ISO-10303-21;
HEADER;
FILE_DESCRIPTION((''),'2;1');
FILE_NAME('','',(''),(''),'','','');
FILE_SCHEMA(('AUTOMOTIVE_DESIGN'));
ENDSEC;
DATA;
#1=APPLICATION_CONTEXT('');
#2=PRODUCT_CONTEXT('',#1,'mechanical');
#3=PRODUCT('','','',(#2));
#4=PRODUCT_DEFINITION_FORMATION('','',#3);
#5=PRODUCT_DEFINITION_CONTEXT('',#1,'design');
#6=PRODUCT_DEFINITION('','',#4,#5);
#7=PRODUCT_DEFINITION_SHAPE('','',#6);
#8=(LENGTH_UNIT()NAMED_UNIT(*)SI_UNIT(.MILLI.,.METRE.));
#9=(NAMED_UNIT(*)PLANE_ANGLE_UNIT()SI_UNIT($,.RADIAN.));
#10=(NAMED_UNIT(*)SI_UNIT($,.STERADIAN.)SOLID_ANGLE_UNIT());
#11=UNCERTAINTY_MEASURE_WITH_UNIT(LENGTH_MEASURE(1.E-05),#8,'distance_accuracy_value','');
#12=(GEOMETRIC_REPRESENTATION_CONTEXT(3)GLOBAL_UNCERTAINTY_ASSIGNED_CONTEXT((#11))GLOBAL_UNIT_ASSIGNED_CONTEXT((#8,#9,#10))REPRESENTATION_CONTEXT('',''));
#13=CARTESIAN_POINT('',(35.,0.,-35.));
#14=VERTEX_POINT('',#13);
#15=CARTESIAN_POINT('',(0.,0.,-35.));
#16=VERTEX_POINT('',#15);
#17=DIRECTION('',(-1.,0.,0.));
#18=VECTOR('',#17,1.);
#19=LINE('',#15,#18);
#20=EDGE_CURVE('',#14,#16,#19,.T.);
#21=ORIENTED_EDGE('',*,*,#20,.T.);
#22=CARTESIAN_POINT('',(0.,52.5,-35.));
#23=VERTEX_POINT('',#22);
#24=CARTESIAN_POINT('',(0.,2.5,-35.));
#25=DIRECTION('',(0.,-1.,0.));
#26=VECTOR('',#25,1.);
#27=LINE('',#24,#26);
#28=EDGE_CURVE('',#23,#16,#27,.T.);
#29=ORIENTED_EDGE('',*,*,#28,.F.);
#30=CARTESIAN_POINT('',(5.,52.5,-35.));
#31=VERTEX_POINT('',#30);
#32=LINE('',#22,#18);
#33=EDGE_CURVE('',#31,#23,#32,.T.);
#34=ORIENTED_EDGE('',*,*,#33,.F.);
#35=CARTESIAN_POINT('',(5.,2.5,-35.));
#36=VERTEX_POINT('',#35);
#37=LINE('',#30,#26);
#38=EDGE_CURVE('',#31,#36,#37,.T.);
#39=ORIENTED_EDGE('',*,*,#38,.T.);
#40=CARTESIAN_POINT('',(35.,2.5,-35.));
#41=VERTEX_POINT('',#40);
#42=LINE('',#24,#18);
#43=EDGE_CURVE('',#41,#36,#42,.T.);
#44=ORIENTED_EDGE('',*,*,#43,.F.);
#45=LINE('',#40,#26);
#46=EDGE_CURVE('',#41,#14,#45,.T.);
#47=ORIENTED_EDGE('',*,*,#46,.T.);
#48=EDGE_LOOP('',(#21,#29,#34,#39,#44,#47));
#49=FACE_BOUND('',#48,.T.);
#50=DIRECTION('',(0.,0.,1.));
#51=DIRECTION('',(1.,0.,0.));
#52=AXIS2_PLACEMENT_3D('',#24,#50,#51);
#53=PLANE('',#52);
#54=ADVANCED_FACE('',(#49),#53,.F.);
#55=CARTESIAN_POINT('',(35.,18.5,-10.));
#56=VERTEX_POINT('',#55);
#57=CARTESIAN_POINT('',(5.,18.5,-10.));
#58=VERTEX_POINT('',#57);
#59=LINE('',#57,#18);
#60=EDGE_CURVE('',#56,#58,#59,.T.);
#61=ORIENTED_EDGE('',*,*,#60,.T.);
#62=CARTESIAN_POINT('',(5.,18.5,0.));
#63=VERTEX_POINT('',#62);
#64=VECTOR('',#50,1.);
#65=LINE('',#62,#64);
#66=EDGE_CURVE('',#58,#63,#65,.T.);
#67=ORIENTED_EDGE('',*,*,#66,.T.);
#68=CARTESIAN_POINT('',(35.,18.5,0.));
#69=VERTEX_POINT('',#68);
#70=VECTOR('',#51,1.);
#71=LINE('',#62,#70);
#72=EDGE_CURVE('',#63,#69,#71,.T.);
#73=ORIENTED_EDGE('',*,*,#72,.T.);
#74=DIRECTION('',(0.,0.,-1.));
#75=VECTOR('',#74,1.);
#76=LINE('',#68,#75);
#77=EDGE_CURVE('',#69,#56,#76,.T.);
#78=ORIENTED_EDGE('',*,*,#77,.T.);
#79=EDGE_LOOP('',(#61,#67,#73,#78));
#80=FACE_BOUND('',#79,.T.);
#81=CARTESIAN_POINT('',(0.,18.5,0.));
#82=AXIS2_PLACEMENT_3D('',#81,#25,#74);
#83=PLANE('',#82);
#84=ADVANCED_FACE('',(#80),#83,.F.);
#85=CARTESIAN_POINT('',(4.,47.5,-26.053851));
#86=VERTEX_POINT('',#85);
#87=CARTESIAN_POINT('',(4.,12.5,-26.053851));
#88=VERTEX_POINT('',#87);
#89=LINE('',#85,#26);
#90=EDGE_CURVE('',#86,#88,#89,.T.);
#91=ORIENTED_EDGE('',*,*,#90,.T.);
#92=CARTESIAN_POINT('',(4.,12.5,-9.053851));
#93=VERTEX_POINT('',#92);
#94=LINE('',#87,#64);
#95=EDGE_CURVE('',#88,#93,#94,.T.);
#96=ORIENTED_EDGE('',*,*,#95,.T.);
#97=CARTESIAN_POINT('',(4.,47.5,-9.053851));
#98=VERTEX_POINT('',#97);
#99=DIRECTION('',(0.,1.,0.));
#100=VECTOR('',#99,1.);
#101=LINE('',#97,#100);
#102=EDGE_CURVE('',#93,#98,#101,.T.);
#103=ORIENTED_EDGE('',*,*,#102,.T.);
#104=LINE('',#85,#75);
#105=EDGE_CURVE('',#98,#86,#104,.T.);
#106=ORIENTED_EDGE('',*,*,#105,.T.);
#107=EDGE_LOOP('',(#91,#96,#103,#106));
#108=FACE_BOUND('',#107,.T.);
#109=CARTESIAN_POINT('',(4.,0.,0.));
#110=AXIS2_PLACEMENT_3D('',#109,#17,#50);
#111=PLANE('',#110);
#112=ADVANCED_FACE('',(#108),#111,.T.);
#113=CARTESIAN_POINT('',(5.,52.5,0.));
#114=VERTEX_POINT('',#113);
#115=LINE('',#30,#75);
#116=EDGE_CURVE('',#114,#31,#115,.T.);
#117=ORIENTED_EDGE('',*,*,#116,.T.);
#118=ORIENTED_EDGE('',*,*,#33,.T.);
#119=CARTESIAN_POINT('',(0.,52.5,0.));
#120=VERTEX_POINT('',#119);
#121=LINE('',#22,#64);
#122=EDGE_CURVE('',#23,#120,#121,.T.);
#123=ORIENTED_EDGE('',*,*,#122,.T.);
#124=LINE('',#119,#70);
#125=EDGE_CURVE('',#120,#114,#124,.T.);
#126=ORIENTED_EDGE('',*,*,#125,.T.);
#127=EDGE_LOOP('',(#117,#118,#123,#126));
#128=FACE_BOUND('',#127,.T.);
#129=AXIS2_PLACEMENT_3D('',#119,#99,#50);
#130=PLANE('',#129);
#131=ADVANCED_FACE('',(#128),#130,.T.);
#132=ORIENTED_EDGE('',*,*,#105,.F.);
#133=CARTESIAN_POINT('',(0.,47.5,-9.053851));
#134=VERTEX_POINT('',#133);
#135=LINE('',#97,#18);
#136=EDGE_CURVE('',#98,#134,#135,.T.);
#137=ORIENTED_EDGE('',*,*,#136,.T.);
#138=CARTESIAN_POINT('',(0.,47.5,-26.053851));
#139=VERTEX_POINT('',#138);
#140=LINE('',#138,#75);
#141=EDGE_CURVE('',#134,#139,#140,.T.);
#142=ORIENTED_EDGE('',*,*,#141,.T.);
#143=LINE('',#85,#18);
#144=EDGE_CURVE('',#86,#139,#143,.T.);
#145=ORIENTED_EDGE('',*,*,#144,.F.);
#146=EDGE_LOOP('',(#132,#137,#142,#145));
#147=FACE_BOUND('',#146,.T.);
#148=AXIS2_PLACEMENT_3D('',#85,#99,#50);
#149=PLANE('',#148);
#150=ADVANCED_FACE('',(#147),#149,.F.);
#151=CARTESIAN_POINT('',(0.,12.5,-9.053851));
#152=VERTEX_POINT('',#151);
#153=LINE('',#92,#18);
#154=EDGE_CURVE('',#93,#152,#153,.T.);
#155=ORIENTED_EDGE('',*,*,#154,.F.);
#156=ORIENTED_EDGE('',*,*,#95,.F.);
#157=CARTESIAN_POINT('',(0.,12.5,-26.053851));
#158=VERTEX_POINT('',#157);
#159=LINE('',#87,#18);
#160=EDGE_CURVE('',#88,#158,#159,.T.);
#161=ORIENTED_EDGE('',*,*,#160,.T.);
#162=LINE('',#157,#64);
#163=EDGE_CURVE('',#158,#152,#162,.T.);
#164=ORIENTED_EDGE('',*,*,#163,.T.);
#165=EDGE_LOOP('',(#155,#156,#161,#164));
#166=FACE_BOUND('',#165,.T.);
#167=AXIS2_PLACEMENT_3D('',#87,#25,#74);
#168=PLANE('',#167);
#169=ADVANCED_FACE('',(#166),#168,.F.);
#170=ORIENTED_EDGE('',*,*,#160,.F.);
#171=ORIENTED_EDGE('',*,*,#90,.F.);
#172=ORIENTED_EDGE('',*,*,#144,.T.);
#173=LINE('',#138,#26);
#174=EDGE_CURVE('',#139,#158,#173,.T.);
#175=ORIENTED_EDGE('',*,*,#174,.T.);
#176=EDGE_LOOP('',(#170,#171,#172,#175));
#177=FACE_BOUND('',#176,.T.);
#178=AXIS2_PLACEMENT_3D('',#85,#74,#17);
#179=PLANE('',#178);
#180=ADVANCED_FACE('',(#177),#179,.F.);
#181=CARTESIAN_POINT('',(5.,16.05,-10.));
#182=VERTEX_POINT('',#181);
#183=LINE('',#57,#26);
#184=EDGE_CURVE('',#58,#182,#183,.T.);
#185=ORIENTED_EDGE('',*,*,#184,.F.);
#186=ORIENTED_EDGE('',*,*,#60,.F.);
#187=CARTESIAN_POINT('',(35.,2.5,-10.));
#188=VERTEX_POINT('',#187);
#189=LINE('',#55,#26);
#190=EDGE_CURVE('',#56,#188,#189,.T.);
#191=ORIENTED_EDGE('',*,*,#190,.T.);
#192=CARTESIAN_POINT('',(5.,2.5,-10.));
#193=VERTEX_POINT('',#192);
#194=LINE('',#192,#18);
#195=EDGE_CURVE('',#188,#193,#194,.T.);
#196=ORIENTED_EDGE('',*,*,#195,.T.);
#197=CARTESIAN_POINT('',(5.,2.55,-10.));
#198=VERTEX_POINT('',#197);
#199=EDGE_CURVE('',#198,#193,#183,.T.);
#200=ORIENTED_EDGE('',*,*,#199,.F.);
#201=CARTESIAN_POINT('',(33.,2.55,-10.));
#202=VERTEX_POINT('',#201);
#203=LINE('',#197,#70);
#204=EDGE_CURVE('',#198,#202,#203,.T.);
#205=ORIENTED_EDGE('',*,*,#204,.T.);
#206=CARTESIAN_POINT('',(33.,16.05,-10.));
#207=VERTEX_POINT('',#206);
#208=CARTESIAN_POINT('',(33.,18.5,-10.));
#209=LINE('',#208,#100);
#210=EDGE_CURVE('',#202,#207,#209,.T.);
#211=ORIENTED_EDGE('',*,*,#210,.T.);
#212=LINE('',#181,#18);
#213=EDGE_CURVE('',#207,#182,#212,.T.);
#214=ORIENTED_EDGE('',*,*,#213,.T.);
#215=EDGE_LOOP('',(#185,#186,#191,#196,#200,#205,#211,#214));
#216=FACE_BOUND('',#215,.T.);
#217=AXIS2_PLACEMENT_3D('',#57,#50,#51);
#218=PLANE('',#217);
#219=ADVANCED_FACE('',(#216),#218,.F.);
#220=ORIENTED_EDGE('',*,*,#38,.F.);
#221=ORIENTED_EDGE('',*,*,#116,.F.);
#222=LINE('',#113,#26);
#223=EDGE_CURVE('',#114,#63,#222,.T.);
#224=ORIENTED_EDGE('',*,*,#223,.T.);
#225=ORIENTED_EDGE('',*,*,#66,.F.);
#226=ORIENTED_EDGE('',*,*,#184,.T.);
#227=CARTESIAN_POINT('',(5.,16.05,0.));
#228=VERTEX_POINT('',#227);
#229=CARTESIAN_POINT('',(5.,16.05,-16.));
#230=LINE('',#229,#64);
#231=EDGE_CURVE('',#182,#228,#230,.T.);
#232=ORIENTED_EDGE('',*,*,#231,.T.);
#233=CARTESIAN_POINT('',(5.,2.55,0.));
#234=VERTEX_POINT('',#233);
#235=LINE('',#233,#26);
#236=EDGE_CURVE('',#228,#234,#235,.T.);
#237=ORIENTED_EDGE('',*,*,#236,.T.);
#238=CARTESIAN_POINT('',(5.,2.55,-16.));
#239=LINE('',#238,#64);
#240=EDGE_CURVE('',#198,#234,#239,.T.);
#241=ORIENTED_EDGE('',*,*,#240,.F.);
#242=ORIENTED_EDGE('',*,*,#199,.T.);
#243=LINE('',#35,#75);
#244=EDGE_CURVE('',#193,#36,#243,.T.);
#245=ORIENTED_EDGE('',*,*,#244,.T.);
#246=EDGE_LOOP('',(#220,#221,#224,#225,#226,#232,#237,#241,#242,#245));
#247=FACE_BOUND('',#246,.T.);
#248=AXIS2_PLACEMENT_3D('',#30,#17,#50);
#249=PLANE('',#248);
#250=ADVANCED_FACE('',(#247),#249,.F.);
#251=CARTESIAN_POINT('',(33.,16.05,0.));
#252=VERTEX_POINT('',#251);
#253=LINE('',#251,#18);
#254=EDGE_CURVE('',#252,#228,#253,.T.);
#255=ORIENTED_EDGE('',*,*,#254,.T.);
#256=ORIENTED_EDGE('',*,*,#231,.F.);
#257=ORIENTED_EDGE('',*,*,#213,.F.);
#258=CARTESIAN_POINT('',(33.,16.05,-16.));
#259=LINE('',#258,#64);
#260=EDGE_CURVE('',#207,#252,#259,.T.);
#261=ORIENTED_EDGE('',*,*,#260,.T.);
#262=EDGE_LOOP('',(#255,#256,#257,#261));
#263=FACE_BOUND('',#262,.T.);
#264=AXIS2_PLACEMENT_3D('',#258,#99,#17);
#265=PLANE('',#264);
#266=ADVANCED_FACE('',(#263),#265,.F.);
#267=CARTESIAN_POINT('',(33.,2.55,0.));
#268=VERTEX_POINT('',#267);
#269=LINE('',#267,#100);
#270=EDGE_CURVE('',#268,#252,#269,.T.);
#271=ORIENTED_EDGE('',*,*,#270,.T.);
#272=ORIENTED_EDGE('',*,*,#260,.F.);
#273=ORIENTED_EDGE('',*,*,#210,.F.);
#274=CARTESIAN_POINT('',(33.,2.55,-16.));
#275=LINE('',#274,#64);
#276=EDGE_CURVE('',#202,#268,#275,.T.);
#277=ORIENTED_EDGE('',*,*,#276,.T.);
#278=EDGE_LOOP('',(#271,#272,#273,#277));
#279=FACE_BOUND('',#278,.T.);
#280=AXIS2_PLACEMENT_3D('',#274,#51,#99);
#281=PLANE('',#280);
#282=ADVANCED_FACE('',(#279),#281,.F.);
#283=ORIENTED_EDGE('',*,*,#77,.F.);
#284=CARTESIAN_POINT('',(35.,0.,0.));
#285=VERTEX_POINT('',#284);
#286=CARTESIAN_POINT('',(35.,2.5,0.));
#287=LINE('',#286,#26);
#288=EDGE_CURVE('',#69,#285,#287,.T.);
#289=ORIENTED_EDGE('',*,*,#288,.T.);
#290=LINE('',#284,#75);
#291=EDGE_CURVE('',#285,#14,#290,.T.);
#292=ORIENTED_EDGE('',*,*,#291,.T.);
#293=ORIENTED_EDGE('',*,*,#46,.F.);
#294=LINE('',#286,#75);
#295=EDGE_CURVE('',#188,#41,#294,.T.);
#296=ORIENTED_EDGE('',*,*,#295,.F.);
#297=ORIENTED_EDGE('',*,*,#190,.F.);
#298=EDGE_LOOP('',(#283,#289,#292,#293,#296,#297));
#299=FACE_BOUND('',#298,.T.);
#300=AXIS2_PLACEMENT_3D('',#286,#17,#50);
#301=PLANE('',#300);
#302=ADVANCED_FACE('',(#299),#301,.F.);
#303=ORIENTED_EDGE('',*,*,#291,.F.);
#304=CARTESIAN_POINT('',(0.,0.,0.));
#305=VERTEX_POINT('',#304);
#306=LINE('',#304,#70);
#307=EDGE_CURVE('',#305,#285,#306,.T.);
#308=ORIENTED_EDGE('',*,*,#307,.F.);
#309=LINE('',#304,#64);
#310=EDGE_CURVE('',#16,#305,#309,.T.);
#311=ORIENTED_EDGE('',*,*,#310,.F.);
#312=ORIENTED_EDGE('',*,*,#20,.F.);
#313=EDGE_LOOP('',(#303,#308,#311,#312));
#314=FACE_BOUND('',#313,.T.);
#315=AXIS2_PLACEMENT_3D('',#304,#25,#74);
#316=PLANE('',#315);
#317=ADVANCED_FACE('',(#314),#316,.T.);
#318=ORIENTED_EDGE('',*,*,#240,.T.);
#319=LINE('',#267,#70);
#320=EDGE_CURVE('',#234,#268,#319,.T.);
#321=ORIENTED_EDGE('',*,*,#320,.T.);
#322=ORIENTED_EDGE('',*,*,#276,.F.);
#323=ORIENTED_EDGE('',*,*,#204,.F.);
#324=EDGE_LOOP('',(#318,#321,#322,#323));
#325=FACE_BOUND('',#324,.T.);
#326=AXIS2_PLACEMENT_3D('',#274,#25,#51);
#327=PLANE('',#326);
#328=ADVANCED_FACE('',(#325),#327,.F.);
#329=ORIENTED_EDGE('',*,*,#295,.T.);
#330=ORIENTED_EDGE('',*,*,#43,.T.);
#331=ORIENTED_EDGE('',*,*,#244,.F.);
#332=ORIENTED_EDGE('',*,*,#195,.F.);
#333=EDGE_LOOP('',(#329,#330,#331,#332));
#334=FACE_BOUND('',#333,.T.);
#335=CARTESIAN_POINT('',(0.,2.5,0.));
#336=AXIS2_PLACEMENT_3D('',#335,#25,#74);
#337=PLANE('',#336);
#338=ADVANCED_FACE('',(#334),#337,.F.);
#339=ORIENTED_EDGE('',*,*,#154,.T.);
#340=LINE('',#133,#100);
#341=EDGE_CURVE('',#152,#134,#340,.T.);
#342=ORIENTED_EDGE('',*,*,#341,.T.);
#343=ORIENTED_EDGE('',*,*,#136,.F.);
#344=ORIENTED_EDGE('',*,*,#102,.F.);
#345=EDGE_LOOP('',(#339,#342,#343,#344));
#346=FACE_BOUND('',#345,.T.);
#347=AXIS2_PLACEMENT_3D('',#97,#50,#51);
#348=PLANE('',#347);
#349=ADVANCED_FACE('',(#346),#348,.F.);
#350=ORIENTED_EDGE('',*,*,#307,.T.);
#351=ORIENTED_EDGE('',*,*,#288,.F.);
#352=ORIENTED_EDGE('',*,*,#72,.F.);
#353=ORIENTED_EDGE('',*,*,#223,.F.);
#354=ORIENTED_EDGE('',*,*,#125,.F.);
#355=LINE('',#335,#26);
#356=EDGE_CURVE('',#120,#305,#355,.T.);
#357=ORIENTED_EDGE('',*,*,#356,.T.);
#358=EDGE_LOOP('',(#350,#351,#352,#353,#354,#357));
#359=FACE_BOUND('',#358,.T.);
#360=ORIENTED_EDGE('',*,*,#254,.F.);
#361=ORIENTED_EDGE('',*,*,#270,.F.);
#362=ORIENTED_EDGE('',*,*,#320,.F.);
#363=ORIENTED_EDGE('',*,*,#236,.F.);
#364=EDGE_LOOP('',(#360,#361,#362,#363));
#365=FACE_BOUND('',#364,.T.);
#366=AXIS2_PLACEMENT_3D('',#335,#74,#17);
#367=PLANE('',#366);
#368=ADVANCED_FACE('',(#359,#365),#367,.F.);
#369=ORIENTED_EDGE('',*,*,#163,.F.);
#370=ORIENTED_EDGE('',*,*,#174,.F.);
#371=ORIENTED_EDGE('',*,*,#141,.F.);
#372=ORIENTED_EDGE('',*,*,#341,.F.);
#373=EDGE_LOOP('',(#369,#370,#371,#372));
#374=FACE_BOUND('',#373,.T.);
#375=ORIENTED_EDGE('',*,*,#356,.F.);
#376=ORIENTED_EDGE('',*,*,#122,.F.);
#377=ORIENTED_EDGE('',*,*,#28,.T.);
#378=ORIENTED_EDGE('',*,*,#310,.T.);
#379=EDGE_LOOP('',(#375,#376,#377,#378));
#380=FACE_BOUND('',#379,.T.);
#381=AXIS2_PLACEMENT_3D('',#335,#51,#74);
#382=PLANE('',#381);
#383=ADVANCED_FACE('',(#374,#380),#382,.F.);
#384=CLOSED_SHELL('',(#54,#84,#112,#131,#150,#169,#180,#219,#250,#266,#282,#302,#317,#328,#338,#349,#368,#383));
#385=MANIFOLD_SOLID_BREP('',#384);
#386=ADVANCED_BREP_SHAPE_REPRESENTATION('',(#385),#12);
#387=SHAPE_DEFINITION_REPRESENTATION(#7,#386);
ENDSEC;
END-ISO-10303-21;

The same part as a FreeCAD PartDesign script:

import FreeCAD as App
import Part
import Sketcher

doc = App.newDocument("Part")
body = doc.addObject("PartDesign::Body", "Body")

# Sketch on XZ plane
sketch1 = doc.addObject("Sketcher::SketchObject", "Sketch")
body.addObject(sketch1)
sketch1.AttachmentSupport = (doc.XZ_Plane, [""])
sketch1.MapMode = "FlatFace"
sketch1.addGeometry([
    Part.LineSegment(App.Vector(0, -35, 0), App.Vector(0, 0, 0)),
    Part.LineSegment(App.Vector(0, 0, 0), App.Vector(35, 0, 0)),
    Part.LineSegment(App.Vector(35, 0, 0), App.Vector(35, -35, 0)),
    Part.LineSegment(App.Vector(35, -35, 0), App.Vector(0, -35, 0)),
], False)
sketch1.addConstraint([
    Sketcher.Constraint("Coincident", 0, 2, 1, 1),
    Sketcher.Constraint("Coincident", 1, 2, 2, 1),
    Sketcher.Constraint("Coincident", 2, 2, 3, 1),
    Sketcher.Constraint("Coincident", 3, 2, 0, 1),
    Sketcher.Constraint("Vertical", 0),
    Sketcher.Constraint("Horizontal", 1),
    Sketcher.Constraint("Vertical", 2),
    Sketcher.Constraint("Horizontal", 3),
    Sketcher.Constraint("Coincident", 0, 2, -1, 1),
    Sketcher.Constraint("Equal", 3, 0),
    Sketcher.Constraint("DistanceX", 1, 1, 1, 2, 35.0),
])
pad1 = doc.addObject("PartDesign::Pad", "Pad")
body.addObject(pad1)
pad1.Profile = sketch1
pad1.Length = 2.5
pad1.Reversed = True

# Sketch on XZ plane
sketch2 = doc.addObject("Sketcher::SketchObject", "Sketch001")
body.addObject(sketch2)
sketch2.AttachmentSupport = (doc.XZ_Plane, [""])
sketch2.MapMode = "FlatFace"
sketch2.AttachmentOffset = App.Placement(App.Vector(0, 0, -2.5), App.Rotation())
sketch2.addGeometry([
    Part.LineSegment(App.Vector(0, -35, 0), App.Vector(0, 0, 0)),
    Part.LineSegment(App.Vector(0, 0, 0), App.Vector(5, 0, 0)),
    Part.LineSegment(App.Vector(5, 0, 0), App.Vector(5, -35, 0)),
    Part.LineSegment(App.Vector(5, -35, 0), App.Vector(0, -35, 0)),
], False)
sketch2.addConstraint([
    Sketcher.Constraint("Coincident", 0, 2, 1, 1),
    Sketcher.Constraint("Coincident", 1, 2, 2, 1),
    Sketcher.Constraint("Coincident", 2, 2, 3, 1),
    Sketcher.Constraint("Coincident", 3, 2, 0, 1),
    Sketcher.Constraint("Vertical", 0),
    Sketcher.Constraint("Horizontal", 1),
    Sketcher.Constraint("Vertical", 2),
    Sketcher.Constraint("Horizontal", 3),
    Sketcher.Constraint("Coincident", 0, 2, -1, 1),
    Sketcher.Constraint("DistanceX", 1, 1, 1, 2, 5.0),
    Sketcher.Constraint("DistanceY", 0, 1, 0, 2, 35.0),
])
pad2 = doc.addObject("PartDesign::Pad", "Pad001")
body.addObject(pad2)
pad2.Profile = sketch2
pad2.Length = 50
pad2.Reversed = True

# Sketch on YZ plane
sketch3 = doc.addObject("Sketcher::SketchObject", "Sketch002")
body.addObject(sketch3)
sketch3.AttachmentSupport = (doc.YZ_Plane, [""])
sketch3.MapMode = "FlatFace"
sketch3.addGeometry([
    Part.LineSegment(App.Vector(48, -26, 0), App.Vector(12, -26, 0)),
    Part.LineSegment(App.Vector(12, -26, 0), App.Vector(12, -9, 0)),
    Part.LineSegment(App.Vector(12, -9, 0), App.Vector(48, -9, 0)),
    Part.LineSegment(App.Vector(48, -9, 0), App.Vector(48, -26, 0)),
], False)
sketch3.addConstraint([
    Sketcher.Constraint("Coincident", 0, 2, 1, 1),
    Sketcher.Constraint("Coincident", 1, 2, 2, 1),
    Sketcher.Constraint("Coincident", 2, 2, 3, 1),
    Sketcher.Constraint("Coincident", 3, 2, 0, 1),
    Sketcher.Constraint("Horizontal", 0),
    Sketcher.Constraint("Vertical", 1),
    Sketcher.Constraint("Horizontal", 2),
    Sketcher.Constraint("Vertical", 3),
    Sketcher.Constraint("DistanceX", 0, 2, 0, 1, 35.0),
    Sketcher.Constraint("DistanceY", 1, 1, 1, 2, 17.0),
    Sketcher.Constraint("DistanceX", -1, 1, 0, 2, 12.5),
    Sketcher.Constraint("DistanceY", 0, 2, -1, 1, 26.053851),
])
pocket1 = doc.addObject("PartDesign::Pocket", "Pocket")
body.addObject(pocket1)
pocket1.Profile = sketch3
pocket1.Length = 4
pocket1.Reversed = True

# Sketch on XZ plane
sketch4 = doc.addObject("Sketcher::SketchObject", "Sketch003")
body.addObject(sketch4)
sketch4.AttachmentSupport = (doc.XZ_Plane, [""])
sketch4.MapMode = "FlatFace"
sketch4.AttachmentOffset = App.Placement(App.Vector(0, 0, -2.5), App.Rotation())
sketch4.addGeometry([
    Part.LineSegment(App.Vector(5, -10, 0), App.Vector(5, 0, 0)),
    Part.LineSegment(App.Vector(5, 0, 0), App.Vector(35, 0, 0)),
    Part.LineSegment(App.Vector(35, 0, 0), App.Vector(35, -10, 0)),
    Part.LineSegment(App.Vector(35, -10, 0), App.Vector(5, -10, 0)),
], False)
sketch4.addConstraint([
    Sketcher.Constraint("Coincident", 0, 2, 1, 1),
    Sketcher.Constraint("Coincident", 1, 2, 2, 1),
    Sketcher.Constraint("Coincident", 2, 2, 3, 1),
    Sketcher.Constraint("Coincident", 3, 2, 0, 1),
    Sketcher.Constraint("Vertical", 0),
    Sketcher.Constraint("Horizontal", 1),
    Sketcher.Constraint("Vertical", 2),
    Sketcher.Constraint("Horizontal", 3),
    Sketcher.Constraint("PointOnObject", 0, 2, -1),
    Sketcher.Constraint("DistanceX", 1, 1, 1, 2, 30.0),
    Sketcher.Constraint("DistanceY", 0, 1, 0, 2, 10.0),
    Sketcher.Constraint("DistanceX", -1, 1, 0, 2, 5.0),
])
pad3 = doc.addObject("PartDesign::Pad", "Pad002")
body.addObject(pad3)
pad3.Profile = sketch4
pad3.Length = 16
pad3.Reversed = True

# Sketch on XY plane
sketch5 = doc.addObject("Sketcher::SketchObject", "Sketch004")
body.addObject(sketch5)
sketch5.AttachmentSupport = (doc.XY_Plane, [""])
sketch5.MapMode = "FlatFace"
sketch5.addGeometry([
    Part.LineSegment(App.Vector(5, 16, 0), App.Vector(5, 3, 0)),
    Part.LineSegment(App.Vector(5, 3, 0), App.Vector(33, 3, 0)),
    Part.LineSegment(App.Vector(33, 3, 0), App.Vector(33, 16, 0)),
    Part.LineSegment(App.Vector(33, 16, 0), App.Vector(5, 16, 0)),
], False)
sketch5.addConstraint([
    Sketcher.Constraint("Coincident", 0, 2, 1, 1),
    Sketcher.Constraint("Coincident", 1, 2, 2, 1),
    Sketcher.Constraint("Coincident", 2, 2, 3, 1),
    Sketcher.Constraint("Coincident", 3, 2, 0, 1),
    Sketcher.Constraint("Vertical", 0),
    Sketcher.Constraint("Horizontal", 1),
    Sketcher.Constraint("Vertical", 2),
    Sketcher.Constraint("Horizontal", 3),
    Sketcher.Constraint("DistanceX", 1, 1, 1, 2, 28.0),
    Sketcher.Constraint("DistanceY", 0, 2, 0, 1, 13.5),
    Sketcher.Constraint("DistanceX", -1, 1, 0, 2, 5.0),
    Sketcher.Constraint("DistanceY", -1, 1, 0, 2, 2.55),
])
pocket2 = doc.addObject("PartDesign::Pocket", "Pocket001")
body.addObject(pocket2)
pocket2.Profile = sketch5
pocket2.Length = 16

doc.recompute()
